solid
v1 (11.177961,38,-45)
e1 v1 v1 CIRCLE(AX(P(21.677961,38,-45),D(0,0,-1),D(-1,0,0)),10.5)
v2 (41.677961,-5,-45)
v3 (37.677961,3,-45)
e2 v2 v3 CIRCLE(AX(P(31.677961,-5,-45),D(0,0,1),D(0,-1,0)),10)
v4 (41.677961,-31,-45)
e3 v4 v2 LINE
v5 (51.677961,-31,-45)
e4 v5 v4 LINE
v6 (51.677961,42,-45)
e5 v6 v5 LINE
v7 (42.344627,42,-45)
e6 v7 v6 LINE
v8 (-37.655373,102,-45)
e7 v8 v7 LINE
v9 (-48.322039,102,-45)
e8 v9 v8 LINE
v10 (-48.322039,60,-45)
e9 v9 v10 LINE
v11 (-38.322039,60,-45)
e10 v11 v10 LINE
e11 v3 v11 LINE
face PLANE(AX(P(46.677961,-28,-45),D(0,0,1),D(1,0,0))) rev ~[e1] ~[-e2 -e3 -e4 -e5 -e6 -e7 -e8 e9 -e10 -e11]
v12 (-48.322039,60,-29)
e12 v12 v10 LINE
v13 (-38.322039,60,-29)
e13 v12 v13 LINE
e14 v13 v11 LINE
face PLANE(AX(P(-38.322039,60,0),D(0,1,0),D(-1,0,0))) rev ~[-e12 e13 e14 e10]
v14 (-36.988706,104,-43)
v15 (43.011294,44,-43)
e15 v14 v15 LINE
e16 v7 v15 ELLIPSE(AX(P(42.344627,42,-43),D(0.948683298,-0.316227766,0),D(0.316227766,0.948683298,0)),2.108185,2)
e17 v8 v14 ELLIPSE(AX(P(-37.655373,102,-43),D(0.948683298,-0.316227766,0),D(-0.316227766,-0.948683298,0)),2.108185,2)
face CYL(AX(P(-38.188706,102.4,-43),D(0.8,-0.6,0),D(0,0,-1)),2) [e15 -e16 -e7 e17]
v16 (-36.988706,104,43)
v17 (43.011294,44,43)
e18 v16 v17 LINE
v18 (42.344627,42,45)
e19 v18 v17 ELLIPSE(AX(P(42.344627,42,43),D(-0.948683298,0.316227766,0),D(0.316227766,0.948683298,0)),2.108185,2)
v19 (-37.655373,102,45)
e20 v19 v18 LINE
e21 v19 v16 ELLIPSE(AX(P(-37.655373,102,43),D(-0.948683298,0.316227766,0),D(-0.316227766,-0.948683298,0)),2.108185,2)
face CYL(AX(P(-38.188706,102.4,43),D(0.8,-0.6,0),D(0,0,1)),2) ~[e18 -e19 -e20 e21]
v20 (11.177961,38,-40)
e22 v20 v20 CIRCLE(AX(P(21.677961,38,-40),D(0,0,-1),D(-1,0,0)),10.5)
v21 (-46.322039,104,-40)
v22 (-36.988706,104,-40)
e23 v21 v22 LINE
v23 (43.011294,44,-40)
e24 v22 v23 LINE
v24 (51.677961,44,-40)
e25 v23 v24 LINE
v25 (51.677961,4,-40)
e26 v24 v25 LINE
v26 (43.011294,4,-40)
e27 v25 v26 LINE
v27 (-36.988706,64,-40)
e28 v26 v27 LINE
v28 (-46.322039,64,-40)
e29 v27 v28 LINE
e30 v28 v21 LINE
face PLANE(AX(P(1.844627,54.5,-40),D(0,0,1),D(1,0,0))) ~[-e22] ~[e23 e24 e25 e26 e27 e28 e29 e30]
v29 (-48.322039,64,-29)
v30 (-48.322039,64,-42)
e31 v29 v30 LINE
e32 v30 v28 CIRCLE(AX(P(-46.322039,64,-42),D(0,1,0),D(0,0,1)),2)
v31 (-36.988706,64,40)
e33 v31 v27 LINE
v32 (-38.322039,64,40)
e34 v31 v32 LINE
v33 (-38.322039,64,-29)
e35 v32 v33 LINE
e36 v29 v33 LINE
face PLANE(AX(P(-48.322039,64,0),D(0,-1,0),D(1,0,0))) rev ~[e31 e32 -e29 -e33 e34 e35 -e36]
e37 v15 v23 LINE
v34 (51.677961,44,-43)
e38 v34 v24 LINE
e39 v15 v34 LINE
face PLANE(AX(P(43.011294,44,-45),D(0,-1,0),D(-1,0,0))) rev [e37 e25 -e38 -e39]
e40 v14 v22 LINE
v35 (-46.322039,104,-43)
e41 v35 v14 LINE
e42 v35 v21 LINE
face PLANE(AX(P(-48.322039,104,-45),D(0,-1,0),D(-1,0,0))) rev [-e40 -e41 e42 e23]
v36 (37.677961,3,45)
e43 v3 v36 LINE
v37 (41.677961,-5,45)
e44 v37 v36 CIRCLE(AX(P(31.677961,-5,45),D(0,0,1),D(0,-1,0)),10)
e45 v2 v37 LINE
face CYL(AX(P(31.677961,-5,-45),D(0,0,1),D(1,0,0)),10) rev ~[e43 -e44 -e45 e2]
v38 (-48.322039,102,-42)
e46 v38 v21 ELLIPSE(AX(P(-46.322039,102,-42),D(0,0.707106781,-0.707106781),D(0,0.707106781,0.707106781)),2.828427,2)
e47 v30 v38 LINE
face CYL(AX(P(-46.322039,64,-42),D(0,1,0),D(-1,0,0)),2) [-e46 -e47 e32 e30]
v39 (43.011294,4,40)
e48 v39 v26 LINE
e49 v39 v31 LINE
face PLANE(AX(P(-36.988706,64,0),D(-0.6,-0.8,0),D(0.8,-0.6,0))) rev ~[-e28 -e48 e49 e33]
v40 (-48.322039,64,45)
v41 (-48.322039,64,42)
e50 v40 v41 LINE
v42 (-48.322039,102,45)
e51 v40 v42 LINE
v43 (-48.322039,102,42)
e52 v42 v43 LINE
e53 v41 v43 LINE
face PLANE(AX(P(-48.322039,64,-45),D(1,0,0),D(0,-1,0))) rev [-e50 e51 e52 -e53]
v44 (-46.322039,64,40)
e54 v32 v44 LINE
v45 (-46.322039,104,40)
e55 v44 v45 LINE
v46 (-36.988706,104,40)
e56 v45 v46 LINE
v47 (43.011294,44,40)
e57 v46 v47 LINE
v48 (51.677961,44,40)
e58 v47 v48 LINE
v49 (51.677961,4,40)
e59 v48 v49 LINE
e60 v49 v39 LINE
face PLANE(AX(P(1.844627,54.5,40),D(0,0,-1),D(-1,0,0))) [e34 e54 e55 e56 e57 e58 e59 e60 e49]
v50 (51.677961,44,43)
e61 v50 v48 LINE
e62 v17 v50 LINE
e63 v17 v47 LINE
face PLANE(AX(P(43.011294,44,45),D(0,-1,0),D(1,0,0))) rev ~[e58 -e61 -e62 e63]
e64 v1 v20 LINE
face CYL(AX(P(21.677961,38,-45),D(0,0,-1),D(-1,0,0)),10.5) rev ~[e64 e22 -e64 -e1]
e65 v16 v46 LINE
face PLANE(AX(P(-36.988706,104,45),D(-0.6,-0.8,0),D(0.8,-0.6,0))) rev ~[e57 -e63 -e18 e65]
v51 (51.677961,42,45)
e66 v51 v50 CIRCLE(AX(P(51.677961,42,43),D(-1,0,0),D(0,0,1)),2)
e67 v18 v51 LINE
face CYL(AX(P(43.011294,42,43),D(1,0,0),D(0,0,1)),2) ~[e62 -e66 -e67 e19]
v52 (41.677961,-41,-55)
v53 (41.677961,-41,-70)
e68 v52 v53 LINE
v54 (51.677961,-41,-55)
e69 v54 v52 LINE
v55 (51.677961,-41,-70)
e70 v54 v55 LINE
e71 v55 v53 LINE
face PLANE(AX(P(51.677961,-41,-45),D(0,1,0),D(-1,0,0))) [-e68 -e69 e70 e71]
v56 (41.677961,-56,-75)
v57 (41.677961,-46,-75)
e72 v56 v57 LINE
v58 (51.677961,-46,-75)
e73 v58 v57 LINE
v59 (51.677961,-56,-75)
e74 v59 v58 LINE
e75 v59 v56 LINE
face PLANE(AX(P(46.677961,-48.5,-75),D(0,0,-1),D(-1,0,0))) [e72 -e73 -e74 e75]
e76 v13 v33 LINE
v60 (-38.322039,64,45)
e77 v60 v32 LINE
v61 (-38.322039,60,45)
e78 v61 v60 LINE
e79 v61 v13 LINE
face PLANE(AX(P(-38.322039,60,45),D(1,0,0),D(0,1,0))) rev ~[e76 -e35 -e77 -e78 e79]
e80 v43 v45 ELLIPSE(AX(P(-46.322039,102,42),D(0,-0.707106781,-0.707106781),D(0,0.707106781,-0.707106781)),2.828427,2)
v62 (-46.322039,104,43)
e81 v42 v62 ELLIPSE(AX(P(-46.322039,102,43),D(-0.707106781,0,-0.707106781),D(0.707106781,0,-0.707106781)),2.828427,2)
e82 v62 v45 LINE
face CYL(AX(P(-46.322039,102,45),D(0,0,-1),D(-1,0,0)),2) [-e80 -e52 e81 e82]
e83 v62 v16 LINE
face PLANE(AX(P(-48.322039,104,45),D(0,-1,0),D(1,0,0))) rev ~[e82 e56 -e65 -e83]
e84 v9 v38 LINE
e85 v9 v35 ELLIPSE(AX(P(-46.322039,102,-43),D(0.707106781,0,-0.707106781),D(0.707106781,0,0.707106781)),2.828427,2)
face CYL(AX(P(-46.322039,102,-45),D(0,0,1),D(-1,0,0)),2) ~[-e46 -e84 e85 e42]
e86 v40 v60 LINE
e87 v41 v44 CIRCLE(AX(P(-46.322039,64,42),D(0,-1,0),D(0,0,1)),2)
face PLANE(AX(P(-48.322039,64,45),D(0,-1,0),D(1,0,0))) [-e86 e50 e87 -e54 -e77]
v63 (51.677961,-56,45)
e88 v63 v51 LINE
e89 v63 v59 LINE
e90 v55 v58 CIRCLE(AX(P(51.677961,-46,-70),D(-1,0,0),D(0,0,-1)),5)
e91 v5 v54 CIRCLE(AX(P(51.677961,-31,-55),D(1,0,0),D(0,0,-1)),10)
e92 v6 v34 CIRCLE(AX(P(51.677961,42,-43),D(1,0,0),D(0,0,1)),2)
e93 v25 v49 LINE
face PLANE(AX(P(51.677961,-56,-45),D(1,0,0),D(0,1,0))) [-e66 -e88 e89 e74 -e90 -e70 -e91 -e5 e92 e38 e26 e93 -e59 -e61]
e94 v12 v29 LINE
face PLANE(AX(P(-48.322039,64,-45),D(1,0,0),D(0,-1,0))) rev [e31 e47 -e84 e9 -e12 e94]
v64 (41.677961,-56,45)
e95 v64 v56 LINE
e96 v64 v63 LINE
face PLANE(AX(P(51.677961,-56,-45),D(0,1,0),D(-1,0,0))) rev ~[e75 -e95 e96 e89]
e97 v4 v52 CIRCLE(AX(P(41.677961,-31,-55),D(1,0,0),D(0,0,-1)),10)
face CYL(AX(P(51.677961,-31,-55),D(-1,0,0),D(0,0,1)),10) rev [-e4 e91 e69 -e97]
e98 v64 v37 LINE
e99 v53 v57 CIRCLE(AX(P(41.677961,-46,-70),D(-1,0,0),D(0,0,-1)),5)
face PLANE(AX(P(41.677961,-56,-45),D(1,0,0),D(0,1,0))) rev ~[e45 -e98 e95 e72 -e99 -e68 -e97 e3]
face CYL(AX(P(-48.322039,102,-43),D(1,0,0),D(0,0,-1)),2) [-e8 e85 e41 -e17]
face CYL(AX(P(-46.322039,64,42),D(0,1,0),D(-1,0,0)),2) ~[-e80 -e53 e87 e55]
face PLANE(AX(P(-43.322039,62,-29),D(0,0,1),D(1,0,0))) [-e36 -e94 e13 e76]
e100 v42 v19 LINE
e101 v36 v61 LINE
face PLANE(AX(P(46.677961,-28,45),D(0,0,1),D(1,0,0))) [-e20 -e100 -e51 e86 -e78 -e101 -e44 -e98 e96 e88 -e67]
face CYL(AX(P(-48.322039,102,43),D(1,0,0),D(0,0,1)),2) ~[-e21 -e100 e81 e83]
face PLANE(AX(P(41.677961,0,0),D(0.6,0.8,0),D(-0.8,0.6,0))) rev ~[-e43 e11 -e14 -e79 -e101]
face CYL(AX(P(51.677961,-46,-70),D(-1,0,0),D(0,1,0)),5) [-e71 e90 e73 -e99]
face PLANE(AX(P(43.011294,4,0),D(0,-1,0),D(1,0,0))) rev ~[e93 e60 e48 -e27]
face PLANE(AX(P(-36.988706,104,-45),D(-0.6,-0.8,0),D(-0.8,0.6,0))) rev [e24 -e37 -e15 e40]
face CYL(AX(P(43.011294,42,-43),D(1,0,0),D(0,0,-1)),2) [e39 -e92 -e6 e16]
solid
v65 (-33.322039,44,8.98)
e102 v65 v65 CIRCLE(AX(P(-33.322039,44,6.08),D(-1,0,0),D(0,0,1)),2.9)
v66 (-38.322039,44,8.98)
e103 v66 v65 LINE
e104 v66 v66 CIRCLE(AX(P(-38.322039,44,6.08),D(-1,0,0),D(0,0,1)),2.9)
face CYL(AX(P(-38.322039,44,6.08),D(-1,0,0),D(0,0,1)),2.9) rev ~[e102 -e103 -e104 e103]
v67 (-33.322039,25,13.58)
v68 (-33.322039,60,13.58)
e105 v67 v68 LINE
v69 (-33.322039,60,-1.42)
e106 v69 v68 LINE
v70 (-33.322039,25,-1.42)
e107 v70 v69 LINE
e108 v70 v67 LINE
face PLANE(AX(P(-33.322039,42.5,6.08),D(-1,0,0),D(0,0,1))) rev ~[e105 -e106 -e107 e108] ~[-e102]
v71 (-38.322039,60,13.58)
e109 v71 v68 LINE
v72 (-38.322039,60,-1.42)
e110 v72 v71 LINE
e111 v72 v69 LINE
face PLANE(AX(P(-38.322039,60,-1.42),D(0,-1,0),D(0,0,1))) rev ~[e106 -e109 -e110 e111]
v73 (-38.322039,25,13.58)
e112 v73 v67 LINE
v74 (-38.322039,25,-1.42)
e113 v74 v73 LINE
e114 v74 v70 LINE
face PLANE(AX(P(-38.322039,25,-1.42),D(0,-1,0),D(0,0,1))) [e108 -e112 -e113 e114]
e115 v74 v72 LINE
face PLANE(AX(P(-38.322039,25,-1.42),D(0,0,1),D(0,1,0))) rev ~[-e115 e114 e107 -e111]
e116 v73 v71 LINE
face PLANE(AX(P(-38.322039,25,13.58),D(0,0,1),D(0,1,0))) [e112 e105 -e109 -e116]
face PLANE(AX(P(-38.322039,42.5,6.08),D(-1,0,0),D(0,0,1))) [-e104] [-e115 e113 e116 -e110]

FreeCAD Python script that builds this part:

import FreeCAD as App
import Part
import Sketcher
from FreeCAD import Vector
Q = App.Units.Quantity


def edges_at(feature, points):
    """Names of the edges that pass closest to the given points."""
    edges = feature.Shape.Edges
    near = lambda p: min(range(len(edges)), key=lambda i: edges[i].distToShape(Part.Vertex(*p))[0])
    return sorted({f"Edge{near(p) + 1}" for p in points})


def add_polygon(sketch, points):
    """Adds a closed chain of lines whose ends are joined by coincident constraints."""
    first, n = sketch.GeometryCount, len(points)
    for a, b in zip(points, points[1:] + points[:1]):
        sketch.addGeometry(Part.LineSegment(App.Vector(*a, 0), App.Vector(*b, 0)), False)
    for i in range(n):
        sketch.addConstraint(Sketcher.Constraint("Coincident", first + i, 2, first + (i + 1) % n, 1))

doc = App.newDocument("Part")
params = doc.addObject("Spreadsheet::Sheet", "Params")
for row, (alias, value) in enumerate([
    ("sketch1_width", "10 mm"),
    ("sketch1_height", "4 mm"),
    ("sketch1_length", "100 mm"),
    ("pad1_length", "90 mm"),
    ("sketch2_height", "40 mm"),
    ("sketch2_length", "100 mm"),
    ("pad2_length", "5 mm"),
    ("sketch3_diameter", "21 mm"),
    ("sketch4_width", "10 mm"),
    ("sketch4_height", "56 mm"),
    ("pad3_length", "90 mm"),
    ("fillet_radius", "10 mm"),
    ("fillet2_radius", "2 mm"),
    ("sketch5_width", "10 mm"),
    ("sketch5_height", "4 mm"),
    ("pocket2_length", "74 mm"),
    ("sketch6_width", "10 mm"),
    ("sketch6_height", "15 mm"),
    ("pad4_length", "30 mm"),
    ("fillet3_radius", "10 mm"),
    ("fillet4_radius", "5 mm"),
    ("sketch7_diameter", "5.8 mm"),
    ("sketch7_width", "35 mm"),
    ("sketch7_height", "15 mm"),
    ("pad5_length", "5 mm"),
], start=1):
    params.set(f"A{row}", alias)
    params.set(f"B{row}", "=" + value)
    params.setAlias(f"B{row}", alias)

body = doc.addObject("PartDesign::Body", "Body")

# Sketch on XY plane
sketch1 = doc.addObject("Sketcher::SketchObject", "Sketch")
body.addObject(sketch1)
sketch1.AttachmentSupport = (doc.XY_Plane, [""])
sketch1.MapMode = "FlatFace"
add_polygon(sketch1, [(-38.3, 60), (41.7, 0), (51.7, 0), (51.7, 4), (43, 4), (-37, 64), (-48.3, 64), (-48.3, 60)])  # lines 0-7
sketch1.addConstraint(Sketcher.Constraint("Horizontal", 1))
sketch1.addConstraint(Sketcher.Constraint("Vertical", 2))
sketch1.addConstraint(Sketcher.Constraint("Horizontal", 3))
sketch1.addConstraint(Sketcher.Constraint("Horizontal", 5))
sketch1.addConstraint(Sketcher.Constraint("Vertical", 6))
sketch1.addConstraint(Sketcher.Constraint("Horizontal", 7))
sketch1.addConstraint(Sketcher.Constraint("PointOnObject", 0, 2, -1))
sketch1.addConstraint(Sketcher.Constraint("Parallel", 0, 4))
sketch1.addConstraint(Sketcher.Constraint("Equal", 1, 7))
sketch1.addConstraint(Sketcher.Constraint("Equal", 2, 6))
sketch1.addConstraint(Sketcher.Constraint("DistanceX", 1, 1, 1, 2, Q("10 mm")))
sketch1.addConstraint(Sketcher.Constraint("DistanceY", 2, 1, 2, 2, Q("4 mm")))
sketch1.addConstraint(Sketcher.Constraint("Distance", 0, Q("100 mm")))
sketch1.addConstraint(Sketcher.Constraint("DistanceY", -1, 1, 4, 2, Q("64 mm")))
sketch1.addConstraint(Sketcher.Constraint("DistanceX", 3, 2, 3, 1, Q("8.666667 mm")))
sketch1.addConstraint(Sketcher.Constraint("DistanceX", -1, 1, 0, 2, Q("41.677961 mm")))
sketch1.setExpression("Constraints[18]", "Params.sketch1_width")
sketch1.setExpression("Constraints[19]", "Params.sketch1_height")
sketch1.setExpression("Constraints[20]", "Params.sketch1_length")
pad1 = doc.addObject("PartDesign::Pad", "Pad")
body.addObject(pad1)
pad1.Profile = sketch1
pad1.setExpression("Length", "Params.pad1_length")
pad1.Midplane = True

# Sketch on XY plane
sketch2 = doc.addObject("Sketcher::SketchObject", "Sketch001")
body.addObject(sketch2)
sketch2.AttachmentSupport = (doc.XY_Plane, [""])
sketch2.MapMode = "FlatFace"
sketch2.AttachmentOffset = App.Placement(Vector(0, 0, 45), App.Rotation())
add_polygon(sketch2, [(-48, 104), (-48, 64), (-37, 64), (43, 4), (52, 4), (52, 44), (43, 44), (-37, 104)])  # lines 0-7
sketch2.addConstraint(Sketcher.Constraint("Vertical", 0))
sketch2.addConstraint(Sketcher.Constraint("Horizontal", 1))
sketch2.addConstraint(Sketcher.Constraint("Horizontal", 3))
sketch2.addConstraint(Sketcher.Constraint("Vertical", 4))
sketch2.addConstraint(Sketcher.Constraint("Horizontal", 5))
sketch2.addConstraint(Sketcher.Constraint("Horizontal", 7))
sketch2.addConstraint(Sketcher.Constraint("Parallel", 2, 6))
sketch2.addConstraint(Sketcher.Constraint("Vertical", 2, 2, 5, 2))
sketch2.addConstraint(Sketcher.Constraint("Vertical", 1, 2, 6, 2))
sketch2.addConstraint(Sketcher.Constraint("DistanceY", 0, 2, 0, 1, Q("40 mm")))
sketch2.addConstraint(Sketcher.Constraint("Distance", 2, Q("100 mm")))
sketch2.addConstraint(Sketcher.Constraint("DistanceY", -1, 1, 0, 2, Q("64 mm")))
sketch2.addConstraint(Sketcher.Constraint("DistanceY", -1, 1, 2, 2, Q("4 mm")))
sketch2.addConstraint(Sketcher.Constraint("DistanceX", 0, 2, 3, 2, Q("100 mm")))
sketch2.addConstraint(Sketcher.Constraint("DistanceX", 1, 1, 1, 2, Q("11.333333 mm")))
sketch2.addConstraint(Sketcher.Constraint("DistanceX", 0, 2, -1, 1, Q("48.322039 mm")))
sketch2.setExpression("Constraints[17]", "Params.sketch2_height")
sketch2.setExpression("Constraints[18]", "Params.sketch2_length")
pad2 = doc.addObject("PartDesign::Pad", "Pad001")
body.addObject(pad2)
pad2.Profile = sketch2
pad2.setExpression("Length", "Params.pad2_length")
pad2.Reversed = True
doc.recompute()

mirrored = doc.addObject("PartDesign::Mirrored", "Mirrored")
body.addObject(mirrored)
mirrored.Originals = [pad2]
mirrored.MirrorPlane = (doc.XY_Plane, [""])
body.Tip = mirrored

# Sketch on XY plane
sketch3 = doc.addObject("Sketcher::SketchObject", "Sketch002")
body.addObject(sketch3)
sketch3.AttachmentSupport = (doc.XY_Plane, [""])
sketch3.MapMode = "FlatFace"
sketch3.AttachmentOffset = App.Placement(Vector(0, 0, -45), App.Rotation())
sketch3.addGeometry(Part.Circle(Vector(22, 38, 0), Vector(0, 0, 1), 10), False)
sketch3.addConstraint(Sketcher.Constraint("Diameter", 0, Q("21 mm")))
sketch3.addConstraint(Sketcher.Constraint("DistanceY", -1, 1, 0, 3, Q("38 mm")))
sketch3.addConstraint(Sketcher.Constraint("DistanceX", -1, 1, 0, 3, Q("21.677961 mm")))
sketch3.setExpression("Constraints[0]", "Params.sketch3_diameter")
pocket1 = doc.addObject("PartDesign::Pocket", "Pocket")
body.addObject(pocket1)
pocket1.Profile = sketch3
pocket1.Type = "UpToFirst"
pocket1.Reversed = True

# Sketch on XY plane
sketch4 = doc.addObject("Sketcher::SketchObject", "Sketch003")
body.addObject(sketch4)
sketch4.AttachmentSupport = (doc.XY_Plane, [""])
sketch4.MapMode = "FlatFace"
sketch4.AttachmentOffset = App.Placement(Vector(0, 0, 45), App.Rotation())
add_polygon(sketch4, [(42, 0), (42, -56), (52, -56), (52, 0)])  # lines 0-3
sketch4.addConstraint(Sketcher.Constraint("Vertical", 0))
sketch4.addConstraint(Sketcher.Constraint("Horizontal", 1))
sketch4.addConstraint(Sketcher.Constraint("Vertical", 2))
sketch4.addConstraint(Sketcher.Constraint("Horizontal", 3))
sketch4.addConstraint(Sketcher.Constraint("PointOnObject", 2, 2, -1))
sketch4.addConstraint(Sketcher.Constraint("DistanceX", 1, 1, 1, 2, Q("10 mm")))
sketch4.addConstraint(Sketcher.Constraint("DistanceY", 0, 2, 0, 1, Q("56 mm")))
sketch4.addConstraint(Sketcher.Constraint("DistanceX", -1, 1, 0, 2, Q("41.677961 mm")))
sketch4.setExpression("Constraints[9]", "Params.sketch4_width")
sketch4.setExpression("Constraints[10]", "Params.sketch4_height")
pad3 = doc.addObject("PartDesign::Pad", "Pad002")
body.addObject(pad3)
pad3.Profile = sketch4
pad3.setExpression("Length", "Params.pad3_length")
pad3.Reversed = True
doc.recompute()

fillet = doc.addObject("PartDesign::Fillet", "Fillet")
body.addObject(fillet)
fillet.Base = (pad3, edges_at(pad3, [(41.678, 0, 0)]))
fillet.setExpression("Radius", "Params.fillet_radius")
doc.recompute()

fillet2 = doc.addObject("PartDesign::Fillet", "Fillet001")
body.addObject(fillet2)
fillet2.Base = (fillet, edges_at(fillet, [
    (-48.322, 84, 40),
    (-48.322, 104, 42.5),
    (47.345, 44, 45),
    (3.011, 74, 45),
    (-42.655, 104, 45),
    (47.345, 44, -45),
    (3.011, 74, -45),
    (-42.655, 104, -45),
    (-48.322, 104, -42.5),
    (-48.322, 84, -40),
]))
fillet2.setExpression("Radius", "Params.fillet2_radius")

# Sketch on XY plane
sketch5 = doc.addObject("Sketcher::SketchObject", "Sketch004")
body.addObject(sketch5)
sketch5.AttachmentSupport = (doc.XY_Plane, [""])
sketch5.MapMode = "FlatFace"
sketch5.AttachmentOffset = App.Placement(Vector(0, 0, 45), App.Rotation())
add_polygon(sketch5, [(-48.3, 64), (-48.3, 60), (-38.3, 60), (-38.3, 64)])  # lines 0-3
sketch5.addConstraint(Sketcher.Constraint("Vertical", 0))
sketch5.addConstraint(Sketcher.Constraint("Horizontal", 1))
sketch5.addConstraint(Sketcher.Constraint("Vertical", 2))
sketch5.addConstraint(Sketcher.Constraint("Horizontal", 3))
sketch5.addConstraint(Sketcher.Constraint("DistanceX", 1, 1, 1, 2, Q("10 mm")))
sketch5.addConstraint(Sketcher.Constraint("DistanceY", 0, 2, 0, 1, Q("4 mm")))
sketch5.addConstraint(Sketcher.Constraint("DistanceY", -1, 1, 0, 2, Q("60 mm")))
sketch5.addConstraint(Sketcher.Constraint("DistanceX", 0, 2, -1, 1, Q("48.322039 mm")))
sketch5.setExpression("Constraints[8]", "Params.sketch5_width")
sketch5.setExpression("Constraints[9]", "Params.sketch5_height")
pocket2 = doc.addObject("PartDesign::Pocket", "Pocket001")
body.addObject(pocket2)
pocket2.Profile = sketch5
pocket2.setExpression("Length", "Params.pocket2_length")

# Sketch on XY plane
sketch6 = doc.addObject("Sketcher::SketchObject", "Sketch005")
body.addObject(sketch6)
sketch6.AttachmentSupport = (doc.XY_Plane, [""])
sketch6.MapMode = "FlatFace"
sketch6.AttachmentOffset = App.Placement(Vector(0, 0, -45), App.Rotation())
add_polygon(sketch6, [(52, -41), (52, -56), (42, -56), (42, -41)])  # lines 0-3
sketch6.addConstraint(Sketcher.Constraint("Vertical", 0))
sketch6.addConstraint(Sketcher.Constraint("Horizontal", 1))
sketch6.addConstraint(Sketcher.Constraint("Vertical", 2))
sketch6.addConstraint(Sketcher.Constraint("Horizontal", 3))
sketch6.addConstraint(Sketcher.Constraint("DistanceX", 1, 2, 1, 1, Q("10 mm")))
sketch6.addConstraint(Sketcher.Constraint("DistanceY", 0, 2, 0, 1, Q("15 mm")))
sketch6.addConstraint(Sketcher.Constraint("DistanceY", 0, 2, -1, 1, Q("56 mm")))
sketch6.addConstraint(Sketcher.Constraint("DistanceX", -1, 1, 0, 2, Q("51.677961 mm")))
sketch6.setExpression("Constraints[8]", "Params.sketch6_width")
sketch6.setExpression("Constraints[9]", "Params.sketch6_height")
pad4 = doc.addObject("PartDesign::Pad", "Pad003")
body.addObject(pad4)
pad4.Profile = sketch6
pad4.setExpression("Length", "Params.pad4_length")
pad4.Reversed = True
doc.recompute()

fillet3 = doc.addObject("PartDesign::Fillet", "Fillet002")
body.addObject(fillet3)
fillet3.Base = (pad4, edges_at(pad4, [(46.678, -41, -45)]))
fillet3.setExpression("Radius", "Params.fillet3_radius")
doc.recompute()

fillet4 = doc.addObject("PartDesign::Fillet", "Fillet003")
body.addObject(fillet4)
fillet4.Base = (fillet3, edges_at(fillet3, [(46.678, -41, -75)]))
fillet4.setExpression("Radius", "Params.fillet4_radius")
body2 = doc.addObject("PartDesign::Body", "Body001")

# Sketch on YZ plane
sketch7 = doc.addObject("Sketcher::SketchObject", "Sketch006")
body2.addObject(sketch7)
sketch7.AttachmentSupport = (doc.getObject("YZ_Plane001"), [""])
sketch7.MapMode = "FlatFace"
sketch7.AttachmentOffset = App.Placement(Vector(0, 0, -38.322039), App.Rotation())
add_polygon(sketch7, [(60, -1.4), (25, -1.4), (25, 13.6), (60, 13.6)])  # lines 0-3
sketch7.addGeometry(Part.Circle(Vector(44, 6.1, 0), Vector(0, 0, 1), 2.9), False)  # 4
sketch7.addConstraint(Sketcher.Constraint("Horizontal", 0))
sketch7.addConstraint(Sketcher.Constraint("Vertical", 1))
sketch7.addConstraint(Sketcher.Constraint("Horizontal", 2))
sketch7.addConstraint(Sketcher.Constraint("Vertical", 3))
sketch7.addConstraint(Sketcher.Constraint("Diameter", 4, Q("5.8 mm")))
sketch7.addConstraint(Sketcher.Constraint("DistanceX", 0, 2, 0, 1, Q("35 mm")))
sketch7.addConstraint(Sketcher.Constraint("DistanceY", 1, 1, 1, 2, Q("15 mm")))
sketch7.addConstraint(Sketcher.Constraint("DistanceX", -1, 1, 4, 3, Q("44 mm")))
sketch7.addConstraint(Sketcher.Constraint("DistanceX", -1, 1, 0, 2, Q("25 mm")))
sketch7.addConstraint(Sketcher.Constraint("DistanceY", 0, 2, 4, 3, Q("7.5 mm")))
sketch7.addConstraint(Sketcher.Constraint("DistanceY", -1, 1, 4, 3, Q("6.08 mm")))
sketch7.setExpression("Constraints[8]", "Params.sketch7_diameter")
sketch7.setExpression("Constraints[9]", "Params.sketch7_width")
sketch7.setExpression("Constraints[10]", "Params.sketch7_height")
pad5 = doc.addObject("PartDesign::Pad", "Pad004")
body2.addObject(pad5)
pad5.Profile = sketch7
pad5.setExpression("Length", "Params.pad5_length")

doc.recompute()
